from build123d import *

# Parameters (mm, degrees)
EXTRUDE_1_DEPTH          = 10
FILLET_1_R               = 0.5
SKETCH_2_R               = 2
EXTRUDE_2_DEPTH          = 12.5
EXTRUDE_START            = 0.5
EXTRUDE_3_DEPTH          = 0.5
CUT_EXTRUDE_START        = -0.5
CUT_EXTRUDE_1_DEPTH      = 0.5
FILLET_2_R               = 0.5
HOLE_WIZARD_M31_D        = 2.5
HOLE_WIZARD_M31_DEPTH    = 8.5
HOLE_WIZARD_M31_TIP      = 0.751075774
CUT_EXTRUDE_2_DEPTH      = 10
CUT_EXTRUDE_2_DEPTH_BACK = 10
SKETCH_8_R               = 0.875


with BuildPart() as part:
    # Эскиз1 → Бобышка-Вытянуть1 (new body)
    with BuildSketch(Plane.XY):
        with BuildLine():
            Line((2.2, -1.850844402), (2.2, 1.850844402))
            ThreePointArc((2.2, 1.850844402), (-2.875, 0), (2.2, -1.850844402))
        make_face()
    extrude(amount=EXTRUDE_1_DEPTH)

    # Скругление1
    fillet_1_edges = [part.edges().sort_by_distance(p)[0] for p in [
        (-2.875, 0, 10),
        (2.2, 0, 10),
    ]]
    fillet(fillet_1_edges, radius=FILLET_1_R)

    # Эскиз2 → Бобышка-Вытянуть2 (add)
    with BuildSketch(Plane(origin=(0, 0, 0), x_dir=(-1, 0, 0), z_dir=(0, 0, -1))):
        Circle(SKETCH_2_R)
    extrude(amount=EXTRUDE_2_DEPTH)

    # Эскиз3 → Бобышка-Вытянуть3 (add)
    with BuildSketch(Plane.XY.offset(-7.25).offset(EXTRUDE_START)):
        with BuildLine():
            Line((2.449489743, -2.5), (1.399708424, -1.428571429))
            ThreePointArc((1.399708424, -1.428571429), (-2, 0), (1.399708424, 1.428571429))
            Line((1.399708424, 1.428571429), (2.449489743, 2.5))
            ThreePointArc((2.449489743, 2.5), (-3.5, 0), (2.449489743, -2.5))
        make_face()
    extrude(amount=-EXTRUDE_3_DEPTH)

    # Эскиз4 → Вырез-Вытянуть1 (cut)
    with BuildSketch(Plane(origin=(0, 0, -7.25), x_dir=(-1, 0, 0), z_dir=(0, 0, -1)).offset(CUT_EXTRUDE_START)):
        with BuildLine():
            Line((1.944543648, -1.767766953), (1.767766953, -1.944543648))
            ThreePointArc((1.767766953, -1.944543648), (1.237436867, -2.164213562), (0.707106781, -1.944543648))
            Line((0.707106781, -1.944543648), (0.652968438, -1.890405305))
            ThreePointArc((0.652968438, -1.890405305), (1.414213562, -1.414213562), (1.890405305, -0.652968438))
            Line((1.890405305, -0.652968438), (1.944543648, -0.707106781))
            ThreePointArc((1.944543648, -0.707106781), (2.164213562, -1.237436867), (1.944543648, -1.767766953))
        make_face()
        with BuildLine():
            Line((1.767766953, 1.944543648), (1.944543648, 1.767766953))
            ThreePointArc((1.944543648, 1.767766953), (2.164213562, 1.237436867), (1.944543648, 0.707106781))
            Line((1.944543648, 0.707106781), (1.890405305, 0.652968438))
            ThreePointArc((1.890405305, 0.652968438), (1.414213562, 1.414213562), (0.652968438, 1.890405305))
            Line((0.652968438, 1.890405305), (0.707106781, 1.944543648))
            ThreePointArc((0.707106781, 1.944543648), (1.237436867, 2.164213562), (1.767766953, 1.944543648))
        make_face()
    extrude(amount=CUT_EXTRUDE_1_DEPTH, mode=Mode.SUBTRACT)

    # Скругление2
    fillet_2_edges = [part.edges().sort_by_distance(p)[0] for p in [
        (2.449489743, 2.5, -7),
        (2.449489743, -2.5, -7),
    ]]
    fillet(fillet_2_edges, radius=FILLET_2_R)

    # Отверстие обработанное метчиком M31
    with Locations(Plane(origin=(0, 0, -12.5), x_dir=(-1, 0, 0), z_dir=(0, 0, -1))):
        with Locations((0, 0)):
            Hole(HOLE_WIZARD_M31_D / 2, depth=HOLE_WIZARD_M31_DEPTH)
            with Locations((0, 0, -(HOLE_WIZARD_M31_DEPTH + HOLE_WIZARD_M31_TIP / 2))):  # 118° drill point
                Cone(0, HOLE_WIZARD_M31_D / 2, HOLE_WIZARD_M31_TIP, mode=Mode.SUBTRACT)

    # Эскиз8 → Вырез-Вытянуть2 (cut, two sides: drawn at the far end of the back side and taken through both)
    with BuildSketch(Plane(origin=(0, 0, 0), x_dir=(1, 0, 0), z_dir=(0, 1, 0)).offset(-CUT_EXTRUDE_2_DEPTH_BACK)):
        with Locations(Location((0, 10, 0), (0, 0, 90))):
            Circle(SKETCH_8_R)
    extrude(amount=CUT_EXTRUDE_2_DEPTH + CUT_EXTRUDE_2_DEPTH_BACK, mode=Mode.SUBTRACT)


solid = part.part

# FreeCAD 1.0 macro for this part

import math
import FreeCAD as App
import Part
import Sketcher
from FreeCAD import Vector


def edges_at(feature, points):
    """Names of the edges that pass closest to the given points."""
    edges = feature.Shape.Edges
    near = lambda p: min(range(len(edges)), key=lambda i: edges[i].distToShape(Part.Vertex(*p))[0])
    return sorted({f"Edge{near(p) + 1}" for p in points})

doc = App.newDocument("Part")
body = doc.addObject("PartDesign::Body", "Body")

# Sketch on XY plane
sketch1 = body.newObject("Sketcher::SketchObject", "Sketch")
sketch1.AttachmentSupport = (doc.getObject("XY_Plane"), [""])
sketch1.MapMode = "FlatFace"
sketch1.addGeometry([
    Part.LineSegment(Vector(2.2, -1.850844, 0), Vector(2.2, 1.850844, 0)),
    Part.ArcOfCircle(Part.Circle(Vector(0, 0, 0), Vector(0, 0, 1), 2.875), math.radians(40.073664), math.radians(319.926336)),
], False)
sketch1.addConstraint([
    Sketcher.Constraint("Coincident", 0, 1, 1, 2),
    Sketcher.Constraint("Coincident", 1, 1, 0, 2),
    Sketcher.Constraint("Vertical", 0),
    Sketcher.Constraint("Coincident", 1, 3, -1, 1),
    Sketcher.Constraint("Radius", 1, 2.875),
    Sketcher.Constraint("DistanceX", -1, 1, 0, 1, 2.2),
])
pad1 = body.newObject("PartDesign::Pad", "Pad")
pad1.Profile = sketch1
pad1.Length = 10
doc.recompute()

fillet = body.newObject("PartDesign::Fillet", "Fillet")
fillet.Base = (pad1, edges_at(pad1, [(-2.875, 0, 10), (2.2, 0, 10)]))
fillet.Radius = 0.5

# Sketch on XY plane
sketch2 = body.newObject("Sketcher::SketchObject", "Sketch001")
sketch2.AttachmentSupport = (doc.getObject("XY_Plane"), [""])
sketch2.MapMode = "FlatFace"
sketch2.addGeometry(Part.Circle(Vector(0, 0, 0), Vector(0, 0, 1), 2), False)
sketch2.addConstraint([
    Sketcher.Constraint("Coincident", 0, 3, -1, 1),
    Sketcher.Constraint("Diameter", 0, 4.0),
])
pad2 = body.newObject("PartDesign::Pad", "Pad001")
pad2.Profile = sketch2
pad2.Length = 12.5
pad2.Reversed = True

# Sketch on XY plane
sketch3 = body.newObject("Sketcher::SketchObject", "Sketch002")
sketch3.AttachmentSupport = (doc.getObject("XY_Plane"), [""])
sketch3.MapMode = "FlatFace"
sketch3.AttachmentOffset = App.Placement(Vector(0, 0, -6.75), App.Rotation())
sketch3.addGeometry([
    Part.LineSegment(Vector(2.44949, -2.5, 0), Vector(1.399708, -1.428571, 0)),
    Part.ArcOfCircle(Part.Circle(Vector(0, 0, 0), Vector(0, 0, 1), 2), math.radians(45.584691), math.radians(314.415309)),
    Part.LineSegment(Vector(1.399708, 1.428571, 0), Vector(2.44949, 2.5, 0)),
    Part.ArcOfCircle(Part.Circle(Vector(0, 0, 0), Vector(0, 0, 1), 3.5), math.radians(45.584691), math.radians(314.415309)),
], False)
sketch3.addConstraint([
    Sketcher.Constraint("Coincident", 0, 2, 1, 2),
    Sketcher.Constraint("Coincident", 1, 1, 2, 1),
    Sketcher.Constraint("Coincident", 2, 2, 3, 1),
    Sketcher.Constraint("Coincident", 3, 2, 0, 1),
    Sketcher.Constraint("Coincident", 1, 3, -1, 1),
    Sketcher.Constraint("Coincident", 3, 3, -1, 1),
    Sketcher.Constraint("Vertical", 0, 2, 1, 1),
    Sketcher.Constraint("Vertical", 2, 2, 3, 2),
    Sketcher.Constraint("Radius", 1, 2.0),
    Sketcher.Constraint("Radius", 3, 3.5),
    Sketcher.Constraint("DistanceY", 3, 2, 2, 2, 5.0),
    Sketcher.Constraint("DistanceX", -1, 1, 0, 2, 1.399708),
])
pad3 = body.newObject("PartDesign::Pad", "Pad002")
pad3.Profile = sketch3
pad3.Length = 0.5
pad3.Reversed = True

# Sketch on XY plane
sketch4 = body.newObject("Sketcher::SketchObject", "Sketch003")
sketch4.AttachmentSupport = (doc.getObject("XY_Plane"), [""])
sketch4.MapMode = "FlatFace"
sketch4.AttachmentOffset = App.Placement(Vector(0, 0, -6.75), App.Rotation())
sketch4.addGeometry([
    Part.LineSegment(Vector(-1.767767, -1.944544, 0), Vector(-1.944544, -1.767767, 0)),  # 0
    Part.ArcOfCircle(Part.Circle(Vector(-1.414214, -1.237437, 0), Vector(0, 0, 1), 0.75), math.radians(135), math.radians(225)),  # 1
    Part.LineSegment(Vector(-1.944544, -0.707107, 0), Vector(-1.890405, -0.652968, 0)),  # 2
    Part.ArcOfCircle(Part.Circle(Vector(0, 0, 0), Vector(0, 0, 1), 2), math.radians(-160.94448), math.radians(-109.05552)),  # 3
    Part.LineSegment(Vector(-0.652968, -1.890405, 0), Vector(-0.707107, -1.944544, 0)),  # 4
    Part.ArcOfCircle(Part.Circle(Vector(-1.237437, -1.414214, 0), Vector(0, 0, 1), 0.75), math.radians(-135), math.radians(-45)),  # 5
    Part.LineSegment(Vector(-1.944544, 1.767767, 0), Vector(-1.767767, 1.944544, 0)),  # 6
    Part.ArcOfCircle(Part.Circle(Vector(-1.237437, 1.414214, 0), Vector(0, 0, 1), 0.75), math.radians(45), math.radians(135)),  # 7
    Part.LineSegment(Vector(-0.707107, 1.944544, 0), Vector(-0.652968, 1.890405, 0)),  # 8
    Part.ArcOfCircle(Part.Circle(Vector(0, 0, 0), Vector(0, 0, 1), 2), math.radians(109.05552), math.radians(160.94448)),  # 9
    Part.LineSegment(Vector(-1.890405, 0.652968, 0), Vector(-1.944544, 0.707107, 0)),  # 10
    Part.ArcOfCircle(Part.Circle(Vector(-1.414214, 1.237437, 0), Vector(0, 0, 1), 0.75), math.radians(135), math.radians(225)),  # 11
], False)
sketch4.addConstraint([
    Sketcher.Constraint("Tangent", 0, 2, 1, 2),
    Sketcher.Constraint("Tangent", 1, 1, 2, 1),
    Sketcher.Constraint("Coincident", 2, 2, 3, 1),
    Sketcher.Constraint("Coincident", 3, 2, 4, 1),
    Sketcher.Constraint("Tangent", 4, 2, 5, 2),
    Sketcher.Constraint("Tangent", 5, 1, 0, 1),
    Sketcher.Constraint("Tangent", 6, 2, 7, 2),
    Sketcher.Constraint("Tangent", 7, 1, 8, 1),
    Sketcher.Constraint("Coincident", 8, 2, 9, 1),
    Sketcher.Constraint("Coincident", 9, 2, 10, 1),
    Sketcher.Constraint("Tangent", 10, 2, 11, 2),
    Sketcher.Constraint("Tangent", 11, 1, 6, 1),
    Sketcher.Constraint("Coincident", 3, 3, -1, 1),
    Sketcher.Constraint("Coincident", 9, 3, -1, 1),
    Sketcher.Constraint("Equal", 1, 5),
    Sketcher.Constraint("Equal", 5, 7),
    Sketcher.Constraint("Equal", 3, 9),
    Sketcher.Constraint("Equal", 7, 11),
    Sketcher.Constraint("Symmetric", 5, 3, 7, 3, -1),
    Sketcher.Constraint("Symmetric", 1, 3, 11, 3, -1),
    Sketcher.Constraint("Perpendicular", 0, 2),
    Sketcher.Constraint("Parallel", 2, 4),
    Sketcher.Constraint("Parallel", 4, 6),
    Sketcher.Constraint("Perpendicular", 6, 8),
    Sketcher.Constraint("Parallel", 8, 10),
    Sketcher.Constraint("Equal", 2, 4),
    Sketcher.Constraint("Radius", 3, 2.0),
    Sketcher.Constraint("Radius", 1, 0.75),
    Sketcher.Constraint("Distance", 0, 0.25),
    Sketcher.Constraint("DistanceY", 0, 2, 2, 2, 1.114799),
])
pocket1 = body.newObject("PartDesign::Pocket", "Pocket")
pocket1.Profile = sketch4
pocket1.Length = 0.5
doc.recompute()

fillet2 = body.newObject("PartDesign::Fillet", "Fillet001")
fillet2.Base = (pocket1, edges_at(pocket1, [(2.449, 2.5, -7), (2.449, -2.5, -7)]))
fillet2.Radius = 0.5

# Sketch on XY plane
sketch5 = body.newObject("Sketcher::SketchObject", "Sketch004")
sketch5.AttachmentSupport = (doc.getObject("XY_Plane"), [""])
sketch5.MapMode = "FlatFace"
sketch5.AttachmentOffset = App.Placement(Vector(0, 0, -12.5), App.Rotation())
sketch5.addGeometry(Part.Circle(Vector(0, 0, 0), Vector(0, 0, 1), 1.25), False)
sketch5.addConstraint([
    Sketcher.Constraint("Coincident", 0, 3, -1, 1),
    Sketcher.Constraint("Diameter", 0, 2.5),
])
doc.recompute()
hole = body.newObject("PartDesign::Hole", "Hole")
hole.Profile = sketch5
hole.ThreadType = "None"
hole.Diameter = 2.5
hole.DepthType = "Dimension"
hole.Depth = 8.5
hole.DrillPoint = "Angled"
hole.DrillPointAngle = 118
hole.Reversed = True

# Sketch on XZ plane
sketch6 = body.newObject("Sketcher::SketchObject", "Sketch005")
sketch6.AttachmentSupport = (doc.getObject("XZ_Plane"), [""])
sketch6.MapMode = "FlatFace"
sketch6.addGeometry(Part.Circle(Vector(0, -10, 0), Vector(0, 0, 1), 0.875), False)
sketch6.addConstraint([
    Sketcher.Constraint("PointOnObject", 0, 3, -2),
    Sketcher.Constraint("Diameter", 0, 1.75),
    Sketcher.Constraint("DistanceY", 0, 3, -1, 1, 10.0),
])
pocket2 = body.newObject("PartDesign::Pocket", "Pocket001")
pocket2.Profile = sketch6
pocket2.Type = "ThroughAll"
pocket2.Midplane = True

doc.recompute()
